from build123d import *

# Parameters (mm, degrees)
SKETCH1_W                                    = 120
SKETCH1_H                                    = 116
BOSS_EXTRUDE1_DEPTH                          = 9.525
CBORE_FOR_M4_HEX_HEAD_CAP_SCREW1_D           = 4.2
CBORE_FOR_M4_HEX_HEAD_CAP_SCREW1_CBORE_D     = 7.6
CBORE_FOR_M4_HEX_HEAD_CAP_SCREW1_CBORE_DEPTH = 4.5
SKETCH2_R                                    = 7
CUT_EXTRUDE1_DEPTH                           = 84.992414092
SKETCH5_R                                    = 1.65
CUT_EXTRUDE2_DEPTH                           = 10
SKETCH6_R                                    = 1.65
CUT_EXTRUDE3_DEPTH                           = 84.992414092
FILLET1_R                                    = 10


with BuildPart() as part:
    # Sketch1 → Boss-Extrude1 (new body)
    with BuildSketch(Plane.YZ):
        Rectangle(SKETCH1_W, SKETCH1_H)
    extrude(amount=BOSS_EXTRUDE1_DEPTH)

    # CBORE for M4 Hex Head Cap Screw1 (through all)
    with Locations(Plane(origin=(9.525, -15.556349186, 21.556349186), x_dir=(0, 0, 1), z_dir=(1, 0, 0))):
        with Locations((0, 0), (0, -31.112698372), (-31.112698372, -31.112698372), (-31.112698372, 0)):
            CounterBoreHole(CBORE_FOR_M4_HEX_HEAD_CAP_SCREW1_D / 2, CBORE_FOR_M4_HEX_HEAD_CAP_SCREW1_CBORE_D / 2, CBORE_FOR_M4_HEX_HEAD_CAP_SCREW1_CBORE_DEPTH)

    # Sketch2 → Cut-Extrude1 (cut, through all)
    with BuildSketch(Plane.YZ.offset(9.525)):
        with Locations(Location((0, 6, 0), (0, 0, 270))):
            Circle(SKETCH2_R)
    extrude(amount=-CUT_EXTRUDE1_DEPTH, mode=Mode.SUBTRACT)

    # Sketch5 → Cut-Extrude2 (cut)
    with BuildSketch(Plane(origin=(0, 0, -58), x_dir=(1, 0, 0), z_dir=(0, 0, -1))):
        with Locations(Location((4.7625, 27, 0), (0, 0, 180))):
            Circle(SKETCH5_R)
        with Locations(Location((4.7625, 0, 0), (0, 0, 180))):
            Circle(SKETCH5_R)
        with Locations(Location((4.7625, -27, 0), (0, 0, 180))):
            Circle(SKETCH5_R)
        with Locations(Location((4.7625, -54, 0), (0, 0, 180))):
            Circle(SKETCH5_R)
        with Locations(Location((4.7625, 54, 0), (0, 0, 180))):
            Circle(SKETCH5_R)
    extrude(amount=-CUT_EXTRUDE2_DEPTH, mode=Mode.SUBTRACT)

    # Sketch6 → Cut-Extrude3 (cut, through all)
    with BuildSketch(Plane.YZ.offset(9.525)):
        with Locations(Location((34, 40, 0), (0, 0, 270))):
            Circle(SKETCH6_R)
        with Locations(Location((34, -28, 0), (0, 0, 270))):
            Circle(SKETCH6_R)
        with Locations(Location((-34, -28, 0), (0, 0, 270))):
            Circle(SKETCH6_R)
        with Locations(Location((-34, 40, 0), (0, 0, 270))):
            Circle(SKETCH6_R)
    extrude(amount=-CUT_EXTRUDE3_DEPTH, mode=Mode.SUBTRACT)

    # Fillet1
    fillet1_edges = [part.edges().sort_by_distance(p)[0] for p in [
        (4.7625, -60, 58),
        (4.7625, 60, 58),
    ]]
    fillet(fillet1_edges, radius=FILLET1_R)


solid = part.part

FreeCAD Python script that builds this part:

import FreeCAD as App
import Part
import Sketcher
from FreeCAD import Vector


def edges_at(feature, points):
    """Names of the edges that pass closest to the given points."""
    edges = feature.Shape.Edges
    near = lambda p: min(range(len(edges)), key=lambda i: edges[i].distToShape(Part.Vertex(*p))[0])
    return sorted({f"Edge{near(p) + 1}" for p in points})

doc = App.newDocument("Part")
body = doc.addObject("PartDesign::Body", "Body")

sketch1 = body.newObject("Sketcher::SketchObject", "Sketch")
sketch1.AttachmentSupport = (doc.getObject("YZ_Plane"), [""])
sketch1.MapMode = "FlatFace"
sketch1.addGeometry(Part.LineSegment(Vector(-60, 58, 0), Vector(-60, -58, 0)), False)
sketch1.addGeometry(Part.LineSegment(Vector(-60, -58, 0), Vector(60, -58, 0)), False)
sketch1.addGeometry(Part.LineSegment(Vector(60, -58, 0), Vector(60, 58, 0)), False)
sketch1.addGeometry(Part.LineSegment(Vector(60, 58, 0), Vector(-60, 58, 0)), False)
sketch1.addConstraint(Sketcher.Constraint("Coincident", 0, 2, 1, 1))
sketch1.addConstraint(Sketcher.Constraint("Coincident", 1, 2, 2, 1))
sketch1.addConstraint(Sketcher.Constraint("Coincident", 2, 2, 3, 1))
sketch1.addConstraint(Sketcher.Constraint("Coincident", 3, 2, 0, 1))
sketch1.addConstraint(Sketcher.Constraint("Vertical", 0))
sketch1.addConstraint(Sketcher.Constraint("Horizontal", 1))
sketch1.addConstraint(Sketcher.Constraint("Vertical", 2))
sketch1.addConstraint(Sketcher.Constraint("Horizontal", 3))
sketch1.addConstraint(Sketcher.Constraint("Symmetric", 0, 2, 2, 2, -1, 1))
sketch1.addConstraint(Sketcher.Constraint("DistanceX", 1, 1, 1, 2, 120.0))
sketch1.addConstraint(Sketcher.Constraint("DistanceY", 0, 2, 0, 1, 116.0))
pad1 = body.newObject("PartDesign::Pad", "Pad")
pad1.Profile = sketch1
pad1.Length = 9.525

sketch2 = body.newObject("Sketcher::SketchObject", "Sketch001")
sketch2.AttachmentSupport = (doc.getObject("YZ_Plane"), [""])
sketch2.MapMode = "FlatFace"
sketch2.AttachmentOffset = App.Placement(Vector(0, 0, 9.525), App.Rotation())
sketch2.addGeometry(Part.Circle(Vector(-15.6, 21.6, 0), Vector(0, 0, 1), 2.1), False)
sketch2.addGeometry(Part.Circle(Vector(15.6, 21.6, 0), Vector(0, 0, 1), 2.1), False)
sketch2.addGeometry(Part.Circle(Vector(15.6, -9.6, 0), Vector(0, 0, 1), 2.1), False)
sketch2.addGeometry(Part.Circle(Vector(-15.6, -9.6, 0), Vector(0, 0, 1), 2.1), False)
sketch2.addConstraint(Sketcher.Constraint("Equal", 0, 1))
sketch2.addConstraint(Sketcher.Constraint("Equal", 1, 2))
sketch2.addConstraint(Sketcher.Constraint("Equal", 2, 3))
sketch2.addConstraint(Sketcher.Constraint("Symmetric", 0, 3, 1, 3, -2))
sketch2.addConstraint(Sketcher.Constraint("Symmetric", 2, 3, 3, 3, -2))
sketch2.addConstraint(Sketcher.Constraint("Vertical", 1, 3, 2, 3))
sketch2.addConstraint(Sketcher.Constraint("Diameter", 0, 4.2))
sketch2.addConstraint(Sketcher.Constraint("DistanceX", 0, 3, 1, 3, 31.112698))
sketch2.addConstraint(Sketcher.Constraint("DistanceY", 2, 3, 1, 3, 31.112698))
sketch2.addConstraint(Sketcher.Constraint("DistanceY", -1, 1, 0, 3, 21.556349))
doc.recompute()
hole = body.newObject("PartDesign::Hole", "Hole")
hole.Profile = sketch2
hole.ThreadType = "None"
hole.Diameter = 4.2
hole.DepthType = "ThroughAll"
hole.HoleCutType = "Counterbore"
hole.HoleCutDiameter = 7.6
hole.HoleCutDepth = 4.5

sketch3 = body.newObject("Sketcher::SketchObject", "Sketch002")
sketch3.AttachmentSupport = (doc.getObject("YZ_Plane"), [""])
sketch3.MapMode = "FlatFace"
sketch3.AttachmentOffset = App.Placement(Vector(0, 0, 9.525), App.Rotation())
sketch3.addGeometry(Part.Circle(Vector(0, 6, 0), Vector(0, 0, 1), 7), False)
sketch3.addConstraint(Sketcher.Constraint("PointOnObject", 0, 3, -2))
sketch3.addConstraint(Sketcher.Constraint("Diameter", 0, 14.0))
sketch3.addConstraint(Sketcher.Constraint("DistanceY", -1, 1, 0, 3, 6.0))
pocket1 = body.newObject("PartDesign::Pocket", "Pocket")
pocket1.Profile = sketch3
pocket1.Type = "ThroughAll"

sketch4 = body.newObject("Sketcher::SketchObject", "Sketch003")
sketch4.AttachmentSupport = (doc.getObject("XY_Plane"), [""])
sketch4.MapMode = "FlatFace"
sketch4.AttachmentOffset = App.Placement(Vector(0, 0, -58), App.Rotation())
sketch4.addGeometry(Part.Circle(Vector(4.8, -27, 0), Vector(0, 0, 1), 1.6), False)
sketch4.addGeometry(Part.Circle(Vector(4.8, 0, 0), Vector(0, 0, 1), 1.6), False)
sketch4.addGeometry(Part.Circle(Vector(4.8, 27, 0), Vector(0, 0, 1), 1.6), False)
sketch4.addGeometry(Part.Circle(Vector(4.8, 54, 0), Vector(0, 0, 1), 1.6), False)
sketch4.addGeometry(Part.Circle(Vector(4.8, -54, 0), Vector(0, 0, 1), 1.6), False)
sketch4.addConstraint(Sketcher.Constraint("Equal", 0, 1))
sketch4.addConstraint(Sketcher.Constraint("Equal", 1, 2))
sketch4.addConstraint(Sketcher.Constraint("Equal", 2, 3))
sketch4.addConstraint(Sketcher.Constraint("Equal", 3, 4))
sketch4.addConstraint(Sketcher.Constraint("Symmetric", 0, 3, 2, 3, -1))
sketch4.addConstraint(Sketcher.Constraint("Symmetric", 3, 3, 4, 3, -1))
sketch4.addConstraint(Sketcher.Constraint("PointOnObject", 1, 3, -1))
sketch4.addConstraint(Sketcher.Constraint("Vertical", 0, 3, 1, 3))
sketch4.addConstraint(Sketcher.Constraint("Vertical", 2, 3, 3, 3))
sketch4.addConstraint(Sketcher.Constraint("Diameter", 0, 3.3))
sketch4.addConstraint(Sketcher.Constraint("DistanceY", 0, 3, -1, 1, 27.0))
sketch4.addConstraint(Sketcher.Constraint("DistanceY", -1, 1, 3, 3, 54.0))
sketch4.addConstraint(Sketcher.Constraint("DistanceX", -1, 1, 0, 3, 4.7625))
pocket2 = body.newObject("PartDesign::Pocket", "Pocket001")
pocket2.Profile = sketch4
pocket2.Length = 10
pocket2.Reversed = True

sketch5 = body.newObject("Sketcher::SketchObject", "Sketch004")
sketch5.AttachmentSupport = (doc.getObject("YZ_Plane"), [""])
sketch5.MapMode = "FlatFace"
sketch5.AttachmentOffset = App.Placement(Vector(0, 0, 9.525), App.Rotation())
sketch5.addGeometry(Part.Circle(Vector(34, 40, 0), Vector(0, 0, 1), 1.6), False)
sketch5.addGeometry(Part.Circle(Vector(34, -28, 0), Vector(0, 0, 1), 1.6), False)
sketch5.addGeometry(Part.Circle(Vector(-34, -28, 0), Vector(0, 0, 1), 1.6), False)
sketch5.addGeometry(Part.Circle(Vector(-34, 40, 0), Vector(0, 0, 1), 1.6), False)
sketch5.addConstraint(Sketcher.Constraint("Equal", 0, 1))
sketch5.addConstraint(Sketcher.Constraint("Equal", 1, 2))
sketch5.addConstraint(Sketcher.Constraint("Equal", 2, 3))
sketch5.addConstraint(Sketcher.Constraint("Symmetric", 1, 3, 2, 3, -2))
sketch5.addConstraint(Sketcher.Constraint("Symmetric", 0, 3, 3, 3, -2))
sketch5.addConstraint(Sketcher.Constraint("Vertical", 0, 3, 1, 3))
sketch5.addConstraint(Sketcher.Constraint("Diameter", 0, 3.3))
sketch5.addConstraint(Sketcher.Constraint("DistanceX", -1, 1, 0, 3, 34.0))
sketch5.addConstraint(Sketcher.Constraint("DistanceY", -1, 1, 0, 3, 40.0))
sketch5.addConstraint(Sketcher.Constraint("DistanceY", 1, 3, -1, 1, 28.0))
pocket3 = body.newObject("PartDesign::Pocket", "Pocket002")
pocket3.Profile = sketch5
pocket3.Type = "ThroughAll"
doc.recompute()

fillet = body.newObject("PartDesign::Fillet", "Fillet")
fillet.Base = (pocket3, edges_at(pocket3, [(4.763, -60, 58), (4.763, 60, 58)]))
fillet.Radius = 10

doc.recompute()
